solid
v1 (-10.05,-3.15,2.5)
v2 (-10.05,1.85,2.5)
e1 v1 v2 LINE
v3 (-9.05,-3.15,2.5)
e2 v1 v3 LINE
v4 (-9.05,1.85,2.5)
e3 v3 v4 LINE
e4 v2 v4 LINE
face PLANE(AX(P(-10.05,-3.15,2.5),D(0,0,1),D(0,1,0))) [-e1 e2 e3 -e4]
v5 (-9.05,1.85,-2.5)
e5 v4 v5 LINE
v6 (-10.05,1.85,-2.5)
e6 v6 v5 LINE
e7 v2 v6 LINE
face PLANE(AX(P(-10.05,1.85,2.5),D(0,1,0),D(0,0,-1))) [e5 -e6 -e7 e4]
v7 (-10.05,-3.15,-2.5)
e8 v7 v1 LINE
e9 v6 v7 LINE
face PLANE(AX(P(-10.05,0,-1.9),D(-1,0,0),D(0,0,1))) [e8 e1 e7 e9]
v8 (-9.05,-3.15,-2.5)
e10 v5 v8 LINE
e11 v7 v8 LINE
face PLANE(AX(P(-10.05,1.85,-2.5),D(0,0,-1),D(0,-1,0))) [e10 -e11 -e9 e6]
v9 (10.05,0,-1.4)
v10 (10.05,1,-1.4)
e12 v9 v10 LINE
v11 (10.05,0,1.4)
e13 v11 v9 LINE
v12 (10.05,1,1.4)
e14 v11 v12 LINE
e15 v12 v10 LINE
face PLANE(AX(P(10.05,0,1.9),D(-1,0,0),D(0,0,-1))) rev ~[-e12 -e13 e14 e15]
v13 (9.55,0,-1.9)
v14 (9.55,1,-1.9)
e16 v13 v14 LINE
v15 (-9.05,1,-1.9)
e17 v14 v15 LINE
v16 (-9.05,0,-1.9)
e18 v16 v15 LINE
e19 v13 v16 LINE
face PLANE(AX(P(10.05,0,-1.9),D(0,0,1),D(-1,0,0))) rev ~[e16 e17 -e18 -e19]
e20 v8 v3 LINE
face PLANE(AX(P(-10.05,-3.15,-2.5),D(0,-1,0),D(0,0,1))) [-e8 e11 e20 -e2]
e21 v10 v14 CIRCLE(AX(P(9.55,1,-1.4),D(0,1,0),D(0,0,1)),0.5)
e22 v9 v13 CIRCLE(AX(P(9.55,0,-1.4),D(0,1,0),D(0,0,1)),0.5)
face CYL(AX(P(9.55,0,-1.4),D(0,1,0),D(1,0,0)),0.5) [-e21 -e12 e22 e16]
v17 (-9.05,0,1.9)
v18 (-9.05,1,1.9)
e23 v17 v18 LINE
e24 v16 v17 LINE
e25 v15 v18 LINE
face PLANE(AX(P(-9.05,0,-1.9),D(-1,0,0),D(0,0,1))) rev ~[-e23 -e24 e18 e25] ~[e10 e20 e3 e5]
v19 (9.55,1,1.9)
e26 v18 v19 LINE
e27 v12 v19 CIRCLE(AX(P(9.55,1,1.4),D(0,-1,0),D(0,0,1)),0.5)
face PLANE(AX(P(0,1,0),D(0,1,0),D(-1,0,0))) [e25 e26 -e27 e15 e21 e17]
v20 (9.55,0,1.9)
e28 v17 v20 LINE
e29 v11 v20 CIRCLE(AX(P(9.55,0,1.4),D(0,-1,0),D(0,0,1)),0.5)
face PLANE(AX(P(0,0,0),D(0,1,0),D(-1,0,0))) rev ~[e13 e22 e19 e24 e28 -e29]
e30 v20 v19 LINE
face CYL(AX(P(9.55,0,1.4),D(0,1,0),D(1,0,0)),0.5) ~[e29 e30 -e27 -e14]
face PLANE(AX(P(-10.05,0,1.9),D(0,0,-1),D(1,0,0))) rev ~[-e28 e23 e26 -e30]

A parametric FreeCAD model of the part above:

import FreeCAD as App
import Part
import Sketcher
Q = App.Units.Quantity


def edges_at(feature, points):
    """Names of the edges that pass closest to the given points."""
    edges = feature.Shape.Edges
    near = lambda p: min(range(len(edges)), key=lambda i: edges[i].distToShape(Part.Vertex(*p))[0])
    return sorted({f"Edge{near(p) + 1}" for p in points})

doc = App.newDocument("Part")
body = doc.addObject("PartDesign::Body", "Body")

# Sketch on XZ plane
sketch1 = body.newObject("Sketcher::SketchObject", "Sketch")
sketch1.AttachmentSupport = (doc.getObject("XZ_Plane"), [""])
sketch1.MapMode = "FlatFace"
sketch1.addGeometry(Part.LineSegment(App.Vector(10.1, 1.9, 0), App.Vector(10.1, -1.9, 0)), False)
sketch1.addGeometry(Part.LineSegment(App.Vector(10.1, -1.9, 0), App.Vector(-10.1, -1.9, 0)), False)
sketch1.addGeometry(Part.LineSegment(App.Vector(-10.1, -1.9, 0), App.Vector(-10.1, 1.9, 0)), False)
sketch1.addGeometry(Part.LineSegment(App.Vector(-10.1, 1.9, 0), App.Vector(10.1, 1.9, 0)), False)
sketch1.addConstraint(Sketcher.Constraint("Coincident", 0, 2, 1, 1))
sketch1.addConstraint(Sketcher.Constraint("Coincident", 1, 2, 2, 1))
sketch1.addConstraint(Sketcher.Constraint("Coincident", 2, 2, 3, 1))
sketch1.addConstraint(Sketcher.Constraint("Coincident", 3, 2, 0, 1))
sketch1.addConstraint(Sketcher.Constraint("Vertical", 0))
sketch1.addConstraint(Sketcher.Constraint("Horizontal", 1))
sketch1.addConstraint(Sketcher.Constraint("Vertical", 2))
sketch1.addConstraint(Sketcher.Constraint("Horizontal", 3))
sketch1.addConstraint(Sketcher.Constraint("Symmetric", 0, 2, 2, 2, -1, 1))
sketch1.addConstraint(Sketcher.Constraint("DistanceX", 1, 2, 1, 1, Q("20.1 mm")))
sketch1.addConstraint(Sketcher.Constraint("DistanceY", 0, 2, 0, 1, Q("3.8 mm")))
pad1 = body.newObject("PartDesign::Pad", "Pad")
pad1.Profile = sketch1
pad1.Length = 1
pad1.Reversed = True
doc.recompute()

fillet = body.newObject("PartDesign::Fillet", "Fillet")
fillet.Base = (pad1, edges_at(pad1, [(10.05, 0.5, 1.9), (10.05, 0.5, -1.9)]))
fillet.Radius = 0.5

# Sketch on YZ plane
sketch2 = body.newObject("Sketcher::SketchObject", "Sketch001")
sketch2.AttachmentSupport = (doc.getObject("YZ_Plane"), [""])
sketch2.MapMode = "FlatFace"
sketch2.AttachmentOffset = App.Placement(App.Vector(0, 0, -10.05), App.Rotation())
sketch2.addGeometry(Part.LineSegment(App.Vector(1.9, -2.5, 0), App.Vector(-3.1, -2.5, 0)), False)
sketch2.addGeometry(Part.LineSegment(App.Vector(-3.1, -2.5, 0), App.Vector(-3.1, 2.5, 0)), False)
sketch2.addGeometry(Part.LineSegment(App.Vector(-3.1, 2.5, 0), App.Vector(1.9, 2.5, 0)), False)
sketch2.addGeometry(Part.LineSegment(App.Vector(1.9, 2.5, 0), App.Vector(1.9, -2.5, 0)), False)
sketch2.addGeometry(Part.LineSegment(App.Vector(0, 1.9, 0), App.Vector(0, -1.9, 0)), False)
sketch2.addGeometry(Part.LineSegment(App.Vector(0, -1.9, 0), App.Vector(1, -1.9, 0)), False)
sketch2.addGeometry(Part.LineSegment(App.Vector(1, -1.9, 0), App.Vector(1, 1.9, 0)), False)
sketch2.addGeometry(Part.LineSegment(App.Vector(1, 1.9, 0), App.Vector(0, 1.9, 0)), False)
sketch2.addConstraint(Sketcher.Constraint("Coincident", 0, 2, 1, 1))
sketch2.addConstraint(Sketcher.Constraint("Coincident", 1, 2, 2, 1))
sketch2.addConstraint(Sketcher.Constraint("Coincident", 2, 2, 3, 1))
sketch2.addConstraint(Sketcher.Constraint("Coincident", 3, 2, 0, 1))
sketch2.addConstraint(Sketcher.Constraint("Coincident", 4, 2, 5, 1))
sketch2.addConstraint(Sketcher.Constraint("Coincident", 5, 2, 6, 1))
sketch2.addConstraint(Sketcher.Constraint("Coincident", 6, 2, 7, 1))
sketch2.addConstraint(Sketcher.Constraint("Coincident", 7, 2, 4, 1))
sketch2.addConstraint(Sketcher.Constraint("Horizontal", 0))
sketch2.addConstraint(Sketcher.Constraint("Vertical", 1))
sketch2.addConstraint(Sketcher.Constraint("Horizontal", 2))
sketch2.addConstraint(Sketcher.Constraint("Vertical", 3))
sketch2.addConstraint(Sketcher.Constraint("Vertical", 4))
sketch2.addConstraint(Sketcher.Constraint("Horizontal", 5))
sketch2.addConstraint(Sketcher.Constraint("Vertical", 6))
sketch2.addConstraint(Sketcher.Constraint("Horizontal", 7))
sketch2.addConstraint(Sketcher.Constraint("Symmetric", 4, 2, 7, 2, -1, 1))
sketch2.addConstraint(Sketcher.Constraint("Equal", 2, 1))
sketch2.addConstraint(Sketcher.Constraint("DistanceX", 0, 2, 0, 1, Q("5 mm")))
sketch2.addConstraint(Sketcher.Constraint("DistanceY", 0, 2, -1, 1, Q("2.5 mm")))
sketch2.addConstraint(Sketcher.Constraint("DistanceX", 5, 1, 5, 2, Q("1 mm")))
sketch2.addConstraint(Sketcher.Constraint("DistanceY", 4, 2, 4, 1, Q("3.8 mm")))
sketch2.addConstraint(Sketcher.Constraint("DistanceX", 0, 2, -1, 1, Q("3.15 mm")))
pad2 = body.newObject("PartDesign::Pad", "Pad001")
pad2.Profile = sketch2
pad2.Length = 1

doc.recompute()
